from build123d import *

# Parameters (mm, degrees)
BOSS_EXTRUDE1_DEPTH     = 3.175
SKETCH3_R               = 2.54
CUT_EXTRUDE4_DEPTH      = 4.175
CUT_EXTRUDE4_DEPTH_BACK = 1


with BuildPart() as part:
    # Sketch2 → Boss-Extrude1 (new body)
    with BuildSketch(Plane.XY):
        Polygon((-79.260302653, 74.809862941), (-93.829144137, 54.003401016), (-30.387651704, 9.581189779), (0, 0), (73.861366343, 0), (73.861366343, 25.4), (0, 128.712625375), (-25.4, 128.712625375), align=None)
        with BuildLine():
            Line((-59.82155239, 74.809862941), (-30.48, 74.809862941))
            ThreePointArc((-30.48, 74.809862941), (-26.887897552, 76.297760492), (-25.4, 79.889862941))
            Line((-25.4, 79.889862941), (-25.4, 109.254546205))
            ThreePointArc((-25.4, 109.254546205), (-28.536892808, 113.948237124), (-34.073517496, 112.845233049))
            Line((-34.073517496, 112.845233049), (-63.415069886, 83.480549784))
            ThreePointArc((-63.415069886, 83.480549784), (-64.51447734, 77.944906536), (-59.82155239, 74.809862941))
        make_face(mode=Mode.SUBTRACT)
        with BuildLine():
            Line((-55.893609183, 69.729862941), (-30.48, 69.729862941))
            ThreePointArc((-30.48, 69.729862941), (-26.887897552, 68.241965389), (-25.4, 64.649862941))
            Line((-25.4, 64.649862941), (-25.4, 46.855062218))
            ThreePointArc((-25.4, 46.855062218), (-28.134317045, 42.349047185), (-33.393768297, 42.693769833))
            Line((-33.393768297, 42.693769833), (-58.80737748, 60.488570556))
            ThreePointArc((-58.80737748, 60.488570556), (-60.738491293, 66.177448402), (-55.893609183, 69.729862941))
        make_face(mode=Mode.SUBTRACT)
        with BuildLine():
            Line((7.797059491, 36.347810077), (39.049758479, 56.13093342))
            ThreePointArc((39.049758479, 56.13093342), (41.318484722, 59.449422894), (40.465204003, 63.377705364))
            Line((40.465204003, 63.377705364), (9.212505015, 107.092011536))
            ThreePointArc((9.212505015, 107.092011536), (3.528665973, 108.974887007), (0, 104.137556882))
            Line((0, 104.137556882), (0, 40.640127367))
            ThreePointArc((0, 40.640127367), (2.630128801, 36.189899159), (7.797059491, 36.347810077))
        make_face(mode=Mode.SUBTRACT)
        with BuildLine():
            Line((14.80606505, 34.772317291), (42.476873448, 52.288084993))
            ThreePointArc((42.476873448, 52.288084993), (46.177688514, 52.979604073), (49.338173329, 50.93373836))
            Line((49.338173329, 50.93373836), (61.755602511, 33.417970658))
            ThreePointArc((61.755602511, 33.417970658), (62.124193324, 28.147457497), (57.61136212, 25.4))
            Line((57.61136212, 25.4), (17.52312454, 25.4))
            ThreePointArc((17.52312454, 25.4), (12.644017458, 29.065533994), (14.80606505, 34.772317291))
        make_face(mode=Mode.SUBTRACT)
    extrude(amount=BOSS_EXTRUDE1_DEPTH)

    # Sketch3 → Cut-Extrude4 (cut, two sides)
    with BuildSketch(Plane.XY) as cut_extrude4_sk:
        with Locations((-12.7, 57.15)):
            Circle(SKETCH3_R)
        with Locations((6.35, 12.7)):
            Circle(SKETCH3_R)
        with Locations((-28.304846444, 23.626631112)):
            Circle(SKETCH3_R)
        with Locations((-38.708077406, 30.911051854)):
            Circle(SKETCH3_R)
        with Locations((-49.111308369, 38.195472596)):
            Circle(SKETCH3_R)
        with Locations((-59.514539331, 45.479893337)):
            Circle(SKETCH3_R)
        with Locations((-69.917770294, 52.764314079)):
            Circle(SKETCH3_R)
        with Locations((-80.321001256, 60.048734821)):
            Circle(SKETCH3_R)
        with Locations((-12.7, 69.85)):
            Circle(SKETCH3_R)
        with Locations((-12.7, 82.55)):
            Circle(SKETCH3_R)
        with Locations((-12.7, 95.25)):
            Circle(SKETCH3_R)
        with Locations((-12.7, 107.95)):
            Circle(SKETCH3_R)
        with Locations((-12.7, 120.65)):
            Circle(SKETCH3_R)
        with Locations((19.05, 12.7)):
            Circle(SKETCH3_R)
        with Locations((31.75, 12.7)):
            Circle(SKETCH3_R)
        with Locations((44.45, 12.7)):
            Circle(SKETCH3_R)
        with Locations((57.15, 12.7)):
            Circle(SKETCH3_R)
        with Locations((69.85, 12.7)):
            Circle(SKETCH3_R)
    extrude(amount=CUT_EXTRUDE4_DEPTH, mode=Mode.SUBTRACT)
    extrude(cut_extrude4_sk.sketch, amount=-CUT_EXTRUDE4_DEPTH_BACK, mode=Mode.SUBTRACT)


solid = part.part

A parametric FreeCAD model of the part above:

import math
import FreeCAD as App
import Part
import Sketcher
from FreeCAD import Vector
Q = App.Units.Quantity

doc = App.newDocument("Part")
body = doc.addObject("PartDesign::Body", "Body")

# Sketch on XY plane
sketch1 = body.newObject("Sketcher::SketchObject", "Sketch")
sketch1.AttachmentSupport = (doc.getObject("XY_Plane"), [""])
sketch1.MapMode = "FlatFace"
sketch1.addGeometry(Part.LineSegment(Vector(-79, 75, 0), Vector(-94, 54, 0)), False)
sketch1.addGeometry(Part.LineSegment(Vector(-94, 54, 0), Vector(-30, 10, 0)), False)
sketch1.addGeometry(Part.LineSegment(Vector(-30, 10, 0), Vector(0, 0, 0)), False)
sketch1.addGeometry(Part.LineSegment(Vector(0, 0, 0), Vector(74, 0, 0)), False)
sketch1.addGeometry(Part.LineSegment(Vector(74, 0, 0), Vector(74, 25, 0)), False)
sketch1.addGeometry(Part.LineSegment(Vector(74, 25, 0), Vector(0, 129, 0)), False)
sketch1.addGeometry(Part.LineSegment(Vector(0, 129, 0), Vector(-25, 129, 0)), False)
sketch1.addGeometry(Part.LineSegment(Vector(-25, 129, 0), Vector(-79, 75, 0)), False)
sketch1.addGeometry(Part.ArcOfCircle(Part.Circle(Vector(-56, 65, 0), Vector(0, 0, 1), 5), math.radians(90), math.radians(235)), False)
sketch1.addGeometry(Part.LineSegment(Vector(-56, 70, 0), Vector(-30, 70, 0)), False)
sketch1.addGeometry(Part.ArcOfCircle(Part.Circle(Vector(-30, 65, 0), Vector(0, 0, 1), 5), math.radians(0), math.radians(90)), False)
sketch1.addGeometry(Part.LineSegment(Vector(-25, 65, 0), Vector(-25, 47, 0)), False)
sketch1.addGeometry(Part.ArcOfCircle(Part.Circle(Vector(-30, 47, 0), Vector(0, 0, 1), 5), math.radians(-125), math.radians(0)), False)
sketch1.addGeometry(Part.LineSegment(Vector(-33, 43, 0), Vector(-59, 60, 0)), False)
sketch1.addGeometry(Part.ArcOfCircle(Part.Circle(Vector(18, 30, 0), Vector(0, 0, 1), 5), math.radians(122), math.radians(270)), False)
sketch1.addGeometry(Part.LineSegment(Vector(15, 35, 0), Vector(42, 52, 0)), False)
sketch1.addGeometry(Part.ArcOfCircle(Part.Circle(Vector(45, 48, 0), Vector(0, 0, 1), 5), math.radians(35), math.radians(122)), False)
sketch1.addGeometry(Part.LineSegment(Vector(49, 51, 0), Vector(62, 33, 0)), False)
sketch1.addGeometry(Part.ArcOfCircle(Part.Circle(Vector(58, 30, 0), Vector(0, 0, 1), 5), math.radians(-90), math.radians(35)), False)
sketch1.addGeometry(Part.LineSegment(Vector(58, 25, 0), Vector(18, 25, 0)), False)
sketch1.addGeometry(Part.LineSegment(Vector(-30, 75, 0), Vector(-60, 75, 0)), False)
sketch1.addGeometry(Part.ArcOfCircle(Part.Circle(Vector(-60, 80, 0), Vector(0, 0, 1), 5), math.radians(135), math.radians(270)), False)
sketch1.addGeometry(Part.LineSegment(Vector(-63, 83, 0), Vector(-34, 113, 0)), False)
sketch1.addGeometry(Part.ArcOfCircle(Part.Circle(Vector(-30, 109, 0), Vector(0, 0, 1), 5), math.radians(0), math.radians(135)), False)
sketch1.addGeometry(Part.LineSegment(Vector(-25, 109, 0), Vector(-25, 80, 0)), False)
sketch1.addGeometry(Part.ArcOfCircle(Part.Circle(Vector(-30, 80, 0), Vector(0, 0, 1), 5), math.radians(-90), math.radians(0)), False)
sketch1.addGeometry(Part.LineSegment(Vector(39, 56, 0), Vector(8, 36, 0)), False)
sketch1.addGeometry(Part.ArcOfCircle(Part.Circle(Vector(5, 41, 0), Vector(0, 0, 1), 5), math.radians(-180), math.radians(-58)), False)
sketch1.addGeometry(Part.LineSegment(Vector(0, 41, 0), Vector(0, 104, 0)), False)
sketch1.addGeometry(Part.ArcOfCircle(Part.Circle(Vector(5, 104, 0), Vector(0, 0, 1), 5), math.radians(36), math.radians(180)), False)
sketch1.addGeometry(Part.LineSegment(Vector(9, 107, 0), Vector(40, 63, 0)), False)
sketch1.addGeometry(Part.ArcOfCircle(Part.Circle(Vector(36, 60, 0), Vector(0, 0, 1), 5), math.radians(-58), math.radians(36)), False)
sketch1.addConstraint(Sketcher.Constraint("Coincident", 0, 2, 1, 1))
sketch1.addConstraint(Sketcher.Constraint("Coincident", 1, 2, 2, 1))
sketch1.addConstraint(Sketcher.Constraint("Coincident", 2, 2, 3, 1))
sketch1.addConstraint(Sketcher.Constraint("Coincident", 3, 2, 4, 1))
sketch1.addConstraint(Sketcher.Constraint("Coincident", 4, 2, 5, 1))
sketch1.addConstraint(Sketcher.Constraint("Coincident", 5, 2, 6, 1))
sketch1.addConstraint(Sketcher.Constraint("Coincident", 6, 2, 7, 1))
sketch1.addConstraint(Sketcher.Constraint("Coincident", 7, 2, 0, 1))
sketch1.addConstraint(Sketcher.Constraint("Tangent", 8, 1, 9, 1))
sketch1.addConstraint(Sketcher.Constraint("Tangent", 9, 2, 10, 2))
sketch1.addConstraint(Sketcher.Constraint("Tangent", 10, 1, 11, 1))
sketch1.addConstraint(Sketcher.Constraint("Tangent", 11, 2, 12, 2))
sketch1.addConstraint(Sketcher.Constraint("Tangent", 12, 1, 13, 1))
sketch1.addConstraint(Sketcher.Constraint("Tangent", 13, 2, 8, 2))
sketch1.addConstraint(Sketcher.Constraint("Tangent", 14, 1, 15, 1))
sketch1.addConstraint(Sketcher.Constraint("Tangent", 15, 2, 16, 2))
sketch1.addConstraint(Sketcher.Constraint("Tangent", 16, 1, 17, 1))
sketch1.addConstraint(Sketcher.Constraint("Tangent", 17, 2, 18, 2))
sketch1.addConstraint(Sketcher.Constraint("Tangent", 18, 1, 19, 1))
sketch1.addConstraint(Sketcher.Constraint("Tangent", 19, 2, 14, 2))
sketch1.addConstraint(Sketcher.Constraint("Tangent", 20, 2, 21, 2))
sketch1.addConstraint(Sketcher.Constraint("Tangent", 21, 1, 22, 1))
sketch1.addConstraint(Sketcher.Constraint("Tangent", 22, 2, 23, 2))
sketch1.addConstraint(Sketcher.Constraint("Tangent", 23, 1, 24, 1))
sketch1.addConstraint(Sketcher.Constraint("Tangent", 24, 2, 25, 2))
sketch1.addConstraint(Sketcher.Constraint("Tangent", 25, 1, 20, 1))
sketch1.addConstraint(Sketcher.Constraint("Tangent", 26, 2, 27, 2))
sketch1.addConstraint(Sketcher.Constraint("Tangent", 27, 1, 28, 1))
sketch1.addConstraint(Sketcher.Constraint("Tangent", 28, 2, 29, 2))
sketch1.addConstraint(Sketcher.Constraint("Tangent", 29, 1, 30, 1))
sketch1.addConstraint(Sketcher.Constraint("Tangent", 30, 2, 31, 2))
sketch1.addConstraint(Sketcher.Constraint("Tangent", 31, 1, 26, 1))
sketch1.addConstraint(Sketcher.Constraint("Horizontal", 3))
sketch1.addConstraint(Sketcher.Constraint("Vertical", 4))
sketch1.addConstraint(Sketcher.Constraint("Horizontal", 6))
sketch1.addConstraint(Sketcher.Constraint("Horizontal", 9))
sketch1.addConstraint(Sketcher.Constraint("Vertical", 11))
sketch1.addConstraint(Sketcher.Constraint("Horizontal", 19))
sketch1.addConstraint(Sketcher.Constraint("Horizontal", 20))
sketch1.addConstraint(Sketcher.Constraint("Vertical", 24))
sketch1.addConstraint(Sketcher.Constraint("Vertical", 28))
sketch1.addConstraint(Sketcher.Constraint("Coincident", 2, 2, -1, 1))
sketch1.addConstraint(Sketcher.Constraint("Equal", 8, 10))
sketch1.addConstraint(Sketcher.Constraint("Equal", 10, 12))
sketch1.addConstraint(Sketcher.Constraint("Equal", 12, 14))
sketch1.addConstraint(Sketcher.Constraint("Equal", 14, 16))
sketch1.addConstraint(Sketcher.Constraint("Equal", 16, 18))
sketch1.addConstraint(Sketcher.Constraint("Equal", 18, 21))
sketch1.addConstraint(Sketcher.Constraint("Equal", 21, 23))
sketch1.addConstraint(Sketcher.Constraint("Equal", 23, 25))
sketch1.addConstraint(Sketcher.Constraint("Equal", 25, 27))
sketch1.addConstraint(Sketcher.Constraint("Equal", 27, 29))
sketch1.addConstraint(Sketcher.Constraint("Equal", 29, 31))
sketch1.addConstraint(Sketcher.Constraint("PointOnObject", 5, 2, -2))
sketch1.addConstraint(Sketcher.Constraint("PointOnObject", 27, 1, -2))
sketch1.addConstraint(Sketcher.Constraint("Perpendicular", 0, 1))
sketch1.addConstraint(Sketcher.Constraint("Parallel", 1, 13))
sketch1.addConstraint(Sketcher.Constraint("Parallel", 7, 22))
sketch1.addConstraint(Sketcher.Constraint("Parallel", 15, 26))
sketch1.addConstraint(Sketcher.Constraint("Parallel", 5, 30))
sketch1.addConstraint(Sketcher.Constraint("Horizontal", 4, 2, 18, 1))
sketch1.addConstraint(Sketcher.Constraint("Horizontal", 7, 2, 20, 2))
sketch1.addConstraint(Sketcher.Constraint("Vertical", 12, 3, 23, 3))
sketch1.addConstraint(Sketcher.Constraint("Vertical", 6, 2, 10, 1))
sketch1.addConstraint(Sketcher.Constraint("Equal", 6, 4))
sketch1.addConstraint(Sketcher.Constraint("Radius", 8, Q("0.2 in")))
sketch1.addConstraint(Sketcher.Constraint("DistanceX", 6, 2, 6, 1, Q("1 in")))
sketch1.addConstraint(Sketcher.Constraint("Distance", 0, Q("1 in")))
sketch1.addConstraint(Sketcher.Constraint("Distance", 5, Q("5 in")))
sketch1.addConstraint(Sketcher.Constraint("Distance", 7, Q("3 in")))
sketch1.addConstraint(Sketcher.Constraint("Angle", 0, Q("-125 deg")))
sketch1.addConstraint(Sketcher.Constraint("Angle", 2, Q("-17.5 deg")))
sketch1.addConstraint(Sketcher.Constraint("DistanceY", 8, 3, 21, 3, Q("0.6 in")))
sketch1.addConstraint(Sketcher.Constraint("DistanceY", 11, 2, 11, 1, 17.794801))
sketch1.addConstraint(Sketcher.Constraint("DistanceY", 28, 1, 28, 2, 63.49743))
sketch1.addConstraint(Sketcher.Constraint("DistanceX", -1, 1, 31, 3, 36.332699))
sketch1.addConstraint(Sketcher.Constraint("DistanceY", -1, 1, 0, 2, 54.003401))
sketch1.addConstraint(Sketcher.Constraint("DistanceX", 15, 2, 16, 1, 6.8613))
sketch1.addConstraint(Sketcher.Constraint("DistanceX", 30, 2, 17, 2, 21.290399))
sketch1.addConstraint(Sketcher.Constraint("Distance", 1, 77.447762))
sketch1.addConstraint(Sketcher.Constraint("Distance", 22, 41.511581))
sketch1.addConstraint(Sketcher.Constraint("DistanceX", 19, 2, 19, 1, 40.088238))
sketch1.addConstraint(Sketcher.Constraint("DistanceY", -1, 1, 31, 3, 60.423251))
pad1 = body.newObject("PartDesign::Pad", "Pad")
pad1.Profile = sketch1
pad1.Length = Q("0.125 in")

# Sketch on XY plane
sketch2 = body.newObject("Sketcher::SketchObject", "Sketch001")
sketch2.AttachmentSupport = (doc.getObject("XY_Plane"), [""])
sketch2.MapMode = "FlatFace"
sketch2.addGeometry(Part.Circle(Vector(-12.7, 57.1, 0), Vector(0, 0, 1), 2.5), False)
sketch2.addGeometry(Part.Circle(Vector(6.3, 12.7, 0), Vector(0, 0, 1), 2.5), False)
sketch2.addGeometry(Part.Circle(Vector(-28.3, 23.6, 0), Vector(0, 0, 1), 2.5), False)
sketch2.addGeometry(Part.Circle(Vector(-38.7, 30.9, 0), Vector(0, 0, 1), 2.5), False)
sketch2.addGeometry(Part.Circle(Vector(-49.1, 38.2, 0), Vector(0, 0, 1), 2.5), False)
sketch2.addGeometry(Part.Circle(Vector(-59.5, 45.5, 0), Vector(0, 0, 1), 2.5), False)
sketch2.addGeometry(Part.Circle(Vector(-69.9, 52.8, 0), Vector(0, 0, 1), 2.5), False)
sketch2.addGeometry(Part.Circle(Vector(-80.3, 60, 0), Vector(0, 0, 1), 2.5), False)
sketch2.addGeometry(Part.Circle(Vector(-12.7, 69.8, 0), Vector(0, 0, 1), 2.5), False)
sketch2.addGeometry(Part.Circle(Vector(-12.7, 82.5, 0), Vector(0, 0, 1), 2.5), False)
sketch2.addGeometry(Part.Circle(Vector(-12.7, 95.2, 0), Vector(0, 0, 1), 2.5), False)
sketch2.addGeometry(Part.Circle(Vector(-12.7, 108, 0), Vector(0, 0, 1), 2.5), False)
sketch2.addGeometry(Part.Circle(Vector(-12.7, 120.7, 0), Vector(0, 0, 1), 2.5), False)
sketch2.addGeometry(Part.Circle(Vector(19.1, 12.7, 0), Vector(0, 0, 1), 2.5), False)
sketch2.addGeometry(Part.Circle(Vector(31.8, 12.7, 0), Vector(0, 0, 1), 2.5), False)
sketch2.addGeometry(Part.Circle(Vector(44.5, 12.7, 0), Vector(0, 0, 1), 2.5), False)
sketch2.addGeometry(Part.Circle(Vector(57.1, 12.7, 0), Vector(0, 0, 1), 2.5), False)
sketch2.addGeometry(Part.Circle(Vector(69.8, 12.7, 0), Vector(0, 0, 1), 2.5), False)
sketch2.addConstraint(Sketcher.Constraint("Equal", 0, 1))
sketch2.addConstraint(Sketcher.Constraint("Equal", 1, 2))
sketch2.addConstraint(Sketcher.Constraint("Equal", 2, 3))
sketch2.addConstraint(Sketcher.Constraint("Equal", 3, 4))
sketch2.addConstraint(Sketcher.Constraint("Equal", 4, 5))
sketch2.addConstraint(Sketcher.Constraint("Equal", 5, 6))
sketch2.addConstraint(Sketcher.Constraint("Equal", 6, 7))
sketch2.addConstraint(Sketcher.Constraint("Equal", 7, 8))
sketch2.addConstraint(Sketcher.Constraint("Equal", 8, 9))
sketch2.addConstraint(Sketcher.Constraint("Equal", 9, 10))
sketch2.addConstraint(Sketcher.Constraint("Equal", 10, 11))
sketch2.addConstraint(Sketcher.Constraint("Equal", 11, 12))
sketch2.addConstraint(Sketcher.Constraint("Equal", 12, 13))
sketch2.addConstraint(Sketcher.Constraint("Equal", 13, 14))
sketch2.addConstraint(Sketcher.Constraint("Equal", 14, 15))
sketch2.addConstraint(Sketcher.Constraint("Equal", 15, 16))
sketch2.addConstraint(Sketcher.Constraint("Equal", 16, 17))
sketch2.addConstraint(Sketcher.Constraint("Horizontal", 1, 3, 13, 3))
sketch2.addConstraint(Sketcher.Constraint("Horizontal", 13, 3, 14, 3))
sketch2.addConstraint(Sketcher.Constraint("Horizontal", 14, 3, 15, 3))
sketch2.addConstraint(Sketcher.Constraint("Horizontal", 15, 3, 16, 3))
sketch2.addConstraint(Sketcher.Constraint("Horizontal", 16, 3, 17, 3))
sketch2.addConstraint(Sketcher.Constraint("Vertical", 0, 3, 8, 3))
sketch2.addConstraint(Sketcher.Constraint("Vertical", 8, 3, 9, 3))
sketch2.addConstraint(Sketcher.Constraint("Vertical", 9, 3, 10, 3))
sketch2.addConstraint(Sketcher.Constraint("Vertical", 10, 3, 11, 3))
sketch2.addConstraint(Sketcher.Constraint("Vertical", 11, 3, 12, 3))
sketch2.addConstraint(Sketcher.Constraint("Diameter", 0, Q("0.2 in")))
sketch2.addConstraint(Sketcher.Constraint("DistanceY", 0, 3, 9, 3, Q("1 in")))
sketch2.addConstraint(Sketcher.Constraint("DistanceY", 8, 3, 10, 3, Q("1 in")))
sketch2.addConstraint(Sketcher.Constraint("DistanceY", 9, 3, 11, 3, Q("1 in")))
sketch2.addConstraint(Sketcher.Constraint("DistanceY", 10, 3, 12, 3, Q("1 in")))
sketch2.addConstraint(Sketcher.Constraint("DistanceX", 1, 3, 14, 3, Q("1 in")))
sketch2.addConstraint(Sketcher.Constraint("DistanceX", 13, 3, 15, 3, Q("1 in")))
sketch2.addConstraint(Sketcher.Constraint("DistanceX", 14, 3, 16, 3, Q("1 in")))
sketch2.addConstraint(Sketcher.Constraint("DistanceX", 15, 3, 17, 3, Q("1 in")))
sketch2.addConstraint(Sketcher.Constraint("DistanceX", 0, 3, -1, 1, Q("0.5 in")))
sketch2.addConstraint(Sketcher.Constraint("DistanceY", -1, 1, 1, 3, Q("0.5 in")))
sketch2.addConstraint(Sketcher.Constraint("DistanceY", 0, 3, 8, 3, Q("0.5 in")))
sketch2.addConstraint(Sketcher.Constraint("DistanceX", 1, 3, 13, 3, Q("0.5 in")))
sketch2.addConstraint(Sketcher.Constraint("DistanceY", -1, 1, 0, 3, Q("2.25 in")))
sketch2.addConstraint(Sketcher.Constraint("DistanceX", -1, 1, 1, 3, Q("0.25 in")))
sketch2.addConstraint(Sketcher.Constraint("DistanceX", 7, 3, -1, 1, 80.321001))
sketch2.addConstraint(Sketcher.Constraint("DistanceY", -1, 1, 2, 3, 23.626631))
sketch2.addConstraint(Sketcher.Constraint("DistanceY", -1, 1, 3, 3, 30.911052))
sketch2.addConstraint(Sketcher.Constraint("DistanceX", 4, 3, -1, 1, 49.111308))
sketch2.addConstraint(Sketcher.Constraint("DistanceX", 5, 3, -1, 1, 59.514539))
sketch2.addConstraint(Sketcher.Constraint("DistanceX", 6, 3, -1, 1, 69.91777))
sketch2.addConstraint(Sketcher.Constraint("DistanceX", 3, 3, 2, 3, 10.403231))
sketch2.addConstraint(Sketcher.Constraint("DistanceX", 4, 3, 3, 3, 10.403231))
sketch2.addConstraint(Sketcher.Constraint("DistanceY", 3, 3, 4, 3, 7.284421))
sketch2.addConstraint(Sketcher.Constraint("DistanceY", 4, 3, 5, 3, 7.284421))
sketch2.addConstraint(Sketcher.Constraint("DistanceY", 5, 3, 6, 3, 7.284421))
sketch2.addConstraint(Sketcher.Constraint("DistanceY", 6, 3, 7, 3, 7.284421))
pocket1 = body.newObject("PartDesign::Pocket", "Pocket")
pocket1.Profile = sketch2
pocket1.Type = "ThroughAll"
pocket1.Midplane = True

doc.recompute()
